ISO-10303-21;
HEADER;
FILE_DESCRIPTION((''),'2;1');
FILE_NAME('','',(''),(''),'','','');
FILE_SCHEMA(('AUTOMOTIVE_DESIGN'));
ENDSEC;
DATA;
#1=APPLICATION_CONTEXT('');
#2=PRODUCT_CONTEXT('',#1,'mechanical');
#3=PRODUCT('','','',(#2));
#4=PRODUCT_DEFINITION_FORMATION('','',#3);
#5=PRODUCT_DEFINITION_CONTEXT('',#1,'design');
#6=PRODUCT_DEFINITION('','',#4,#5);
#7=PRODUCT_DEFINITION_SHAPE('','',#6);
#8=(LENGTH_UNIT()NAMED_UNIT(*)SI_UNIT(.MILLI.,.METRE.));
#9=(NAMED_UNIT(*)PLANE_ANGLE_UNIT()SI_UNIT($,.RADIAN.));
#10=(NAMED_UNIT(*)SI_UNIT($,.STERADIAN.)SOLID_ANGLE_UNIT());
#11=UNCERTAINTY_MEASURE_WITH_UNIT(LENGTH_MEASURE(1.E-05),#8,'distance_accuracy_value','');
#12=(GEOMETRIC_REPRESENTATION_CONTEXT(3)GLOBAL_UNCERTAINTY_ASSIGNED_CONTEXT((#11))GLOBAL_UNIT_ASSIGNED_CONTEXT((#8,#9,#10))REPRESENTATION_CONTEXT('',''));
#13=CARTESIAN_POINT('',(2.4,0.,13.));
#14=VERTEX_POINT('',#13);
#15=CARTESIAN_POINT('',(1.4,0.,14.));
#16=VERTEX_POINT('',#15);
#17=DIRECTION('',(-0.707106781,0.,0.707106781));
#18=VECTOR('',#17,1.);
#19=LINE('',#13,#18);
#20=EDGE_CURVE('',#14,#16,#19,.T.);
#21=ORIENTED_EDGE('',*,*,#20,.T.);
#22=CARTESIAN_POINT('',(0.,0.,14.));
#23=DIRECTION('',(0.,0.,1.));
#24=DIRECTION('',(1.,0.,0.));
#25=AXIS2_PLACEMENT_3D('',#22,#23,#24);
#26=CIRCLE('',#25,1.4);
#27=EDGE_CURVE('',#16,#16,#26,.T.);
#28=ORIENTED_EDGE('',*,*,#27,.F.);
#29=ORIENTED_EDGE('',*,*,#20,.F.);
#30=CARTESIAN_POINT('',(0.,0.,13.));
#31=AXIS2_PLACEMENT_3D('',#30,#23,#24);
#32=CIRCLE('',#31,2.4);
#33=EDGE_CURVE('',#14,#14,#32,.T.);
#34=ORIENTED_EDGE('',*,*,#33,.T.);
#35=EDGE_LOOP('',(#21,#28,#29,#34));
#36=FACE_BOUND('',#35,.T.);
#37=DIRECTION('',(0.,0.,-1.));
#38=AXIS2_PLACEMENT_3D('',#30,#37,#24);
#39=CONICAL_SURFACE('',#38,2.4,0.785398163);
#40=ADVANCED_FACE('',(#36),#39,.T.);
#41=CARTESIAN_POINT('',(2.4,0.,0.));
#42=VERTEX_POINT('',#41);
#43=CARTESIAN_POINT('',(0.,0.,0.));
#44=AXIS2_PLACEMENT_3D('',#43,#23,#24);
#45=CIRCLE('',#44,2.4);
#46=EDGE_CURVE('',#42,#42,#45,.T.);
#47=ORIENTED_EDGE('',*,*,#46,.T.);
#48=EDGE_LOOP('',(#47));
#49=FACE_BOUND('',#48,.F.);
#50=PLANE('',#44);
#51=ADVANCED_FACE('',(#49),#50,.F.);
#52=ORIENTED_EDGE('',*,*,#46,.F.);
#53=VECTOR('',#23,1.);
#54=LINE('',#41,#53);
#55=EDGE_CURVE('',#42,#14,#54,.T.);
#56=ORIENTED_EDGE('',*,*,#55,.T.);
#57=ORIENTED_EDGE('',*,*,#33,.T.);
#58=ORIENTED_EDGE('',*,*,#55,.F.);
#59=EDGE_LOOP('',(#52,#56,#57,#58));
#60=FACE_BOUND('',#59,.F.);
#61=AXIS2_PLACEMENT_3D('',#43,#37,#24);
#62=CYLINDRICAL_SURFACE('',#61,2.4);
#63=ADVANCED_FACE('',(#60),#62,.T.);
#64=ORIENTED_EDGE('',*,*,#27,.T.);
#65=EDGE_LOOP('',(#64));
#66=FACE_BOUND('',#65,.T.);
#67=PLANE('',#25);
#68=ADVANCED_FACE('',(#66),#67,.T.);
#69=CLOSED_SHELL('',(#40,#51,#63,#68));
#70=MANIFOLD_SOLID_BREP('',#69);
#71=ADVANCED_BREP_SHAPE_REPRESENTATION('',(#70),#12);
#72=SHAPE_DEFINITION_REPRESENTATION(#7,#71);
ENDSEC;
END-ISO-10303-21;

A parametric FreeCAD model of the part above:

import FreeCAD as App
import Part
import Sketcher
Q = App.Units.Quantity


def edges_at(feature, points):
    """Names of the edges that pass closest to the given points."""
    edges = feature.Shape.Edges
    near = lambda p: min(range(len(edges)), key=lambda i: edges[i].distToShape(Part.Vertex(*p))[0])
    return sorted({f"Edge{near(p) + 1}" for p in points})

doc = App.newDocument("Part")
body = doc.addObject("PartDesign::Body", "Body")

sketch1 = body.newObject("Sketcher::SketchObject", "Sketch")
sketch1.AttachmentSupport = (doc.getObject("XY_Plane"), [""])
sketch1.MapMode = "FlatFace"
sketch1.addGeometry(Part.Circle(App.Vector(0, 0, 0), App.Vector(0, 0, 1), 2.4), False)
sketch1.addConstraint(Sketcher.Constraint("Coincident", 0, 3, -1, 1))
sketch1.addConstraint(Sketcher.Constraint("Diameter", 0, Q("4.8 mm")))
pad1 = body.newObject("PartDesign::Pad", "Pad")
pad1.Profile = sketch1
pad1.Length = 14
doc.recompute()

chamfer = body.newObject("PartDesign::Chamfer", "Chamfer")
chamfer.Base = (pad1, edges_at(pad1, [(-2.4, 0, 14)]))
chamfer.Size = 1

doc.recompute()
